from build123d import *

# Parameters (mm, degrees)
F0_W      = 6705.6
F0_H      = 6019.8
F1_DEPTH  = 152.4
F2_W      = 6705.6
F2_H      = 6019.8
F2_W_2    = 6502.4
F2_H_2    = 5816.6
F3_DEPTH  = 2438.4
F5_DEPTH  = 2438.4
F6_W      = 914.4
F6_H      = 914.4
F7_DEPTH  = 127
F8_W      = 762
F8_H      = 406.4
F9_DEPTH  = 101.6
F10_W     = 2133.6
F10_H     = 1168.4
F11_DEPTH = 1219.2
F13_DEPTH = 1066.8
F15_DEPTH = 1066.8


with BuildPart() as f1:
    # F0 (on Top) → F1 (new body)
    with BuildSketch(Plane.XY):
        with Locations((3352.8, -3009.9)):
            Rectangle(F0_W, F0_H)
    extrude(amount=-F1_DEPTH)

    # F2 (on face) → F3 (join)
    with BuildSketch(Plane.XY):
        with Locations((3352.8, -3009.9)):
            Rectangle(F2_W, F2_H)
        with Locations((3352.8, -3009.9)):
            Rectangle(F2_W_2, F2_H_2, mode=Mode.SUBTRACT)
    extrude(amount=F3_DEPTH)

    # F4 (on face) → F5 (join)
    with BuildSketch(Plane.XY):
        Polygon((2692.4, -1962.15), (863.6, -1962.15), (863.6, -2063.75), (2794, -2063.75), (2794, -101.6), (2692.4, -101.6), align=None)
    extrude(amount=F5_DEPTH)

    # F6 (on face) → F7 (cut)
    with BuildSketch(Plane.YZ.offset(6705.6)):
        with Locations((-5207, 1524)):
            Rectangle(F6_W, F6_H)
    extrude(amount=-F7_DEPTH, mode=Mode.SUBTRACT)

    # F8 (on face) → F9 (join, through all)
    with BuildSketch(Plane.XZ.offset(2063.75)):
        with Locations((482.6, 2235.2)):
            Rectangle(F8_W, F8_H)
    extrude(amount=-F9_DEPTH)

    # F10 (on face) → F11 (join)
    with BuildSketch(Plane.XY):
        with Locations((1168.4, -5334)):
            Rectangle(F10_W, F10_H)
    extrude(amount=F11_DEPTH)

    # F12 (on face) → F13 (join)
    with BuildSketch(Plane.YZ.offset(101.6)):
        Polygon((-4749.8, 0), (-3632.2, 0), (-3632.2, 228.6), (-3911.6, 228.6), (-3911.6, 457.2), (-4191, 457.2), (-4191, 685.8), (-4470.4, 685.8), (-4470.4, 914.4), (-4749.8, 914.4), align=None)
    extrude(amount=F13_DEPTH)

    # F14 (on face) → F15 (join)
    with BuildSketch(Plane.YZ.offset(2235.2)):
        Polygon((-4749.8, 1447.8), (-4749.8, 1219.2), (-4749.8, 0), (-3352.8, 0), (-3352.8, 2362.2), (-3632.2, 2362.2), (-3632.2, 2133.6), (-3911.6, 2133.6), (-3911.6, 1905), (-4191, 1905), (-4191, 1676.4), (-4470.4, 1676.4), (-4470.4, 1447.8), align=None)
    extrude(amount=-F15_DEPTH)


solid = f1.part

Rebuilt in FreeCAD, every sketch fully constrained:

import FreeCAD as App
import Part
import Sketcher
from FreeCAD import Vector
Q = App.Units.Quantity

doc = App.newDocument("Part")
body = doc.addObject("PartDesign::Body", "Body")

# Sketch on XY plane
sketch1 = doc.addObject("Sketcher::SketchObject", "Sketch")
body.addObject(sketch1)
sketch1.AttachmentSupport = (doc.XY_Plane, [""])
sketch1.MapMode = "FlatFace"
sketch1.addGeometry(Part.LineSegment(Vector(0, 0, 0), Vector(0, -6020, 0)), False)
sketch1.addGeometry(Part.LineSegment(Vector(0, -6020, 0), Vector(6706, -6020, 0)), False)
sketch1.addGeometry(Part.LineSegment(Vector(6706, -6020, 0), Vector(6706, 0, 0)), False)
sketch1.addGeometry(Part.LineSegment(Vector(6706, 0, 0), Vector(0, 0, 0)), False)
sketch1.addConstraint(Sketcher.Constraint("Coincident", 0, 2, 1, 1))
sketch1.addConstraint(Sketcher.Constraint("Coincident", 1, 2, 2, 1))
sketch1.addConstraint(Sketcher.Constraint("Coincident", 2, 2, 3, 1))
sketch1.addConstraint(Sketcher.Constraint("Coincident", 3, 2, 0, 1))
sketch1.addConstraint(Sketcher.Constraint("Vertical", 0))
sketch1.addConstraint(Sketcher.Constraint("Horizontal", 1))
sketch1.addConstraint(Sketcher.Constraint("Vertical", 2))
sketch1.addConstraint(Sketcher.Constraint("Horizontal", 3))
sketch1.addConstraint(Sketcher.Constraint("Coincident", 3, 2, -1, 1))
sketch1.addConstraint(Sketcher.Constraint("DistanceX", 1, 1, 1, 2, Q("264 in")))
sketch1.addConstraint(Sketcher.Constraint("DistanceY", 0, 2, 0, 1, Q("237 in")))
pad1 = doc.addObject("PartDesign::Pad", "Pad")
body.addObject(pad1)
pad1.Profile = sketch1
pad1.Length = Q("6 in")
pad1.Reversed = True

# Sketch on XY plane
sketch2 = doc.addObject("Sketcher::SketchObject", "Sketch001")
body.addObject(sketch2)
sketch2.AttachmentSupport = (doc.XY_Plane, [""])
sketch2.MapMode = "FlatFace"
sketch2.addGeometry(Part.LineSegment(Vector(0, 0, 0), Vector(0, -6020, 0)), False)
sketch2.addGeometry(Part.LineSegment(Vector(0, -6020, 0), Vector(6706, -6020, 0)), False)
sketch2.addGeometry(Part.LineSegment(Vector(6706, -6020, 0), Vector(6706, 0, 0)), False)
sketch2.addGeometry(Part.LineSegment(Vector(6706, 0, 0), Vector(0, 0, 0)), False)
sketch2.addGeometry(Part.LineSegment(Vector(6604, -5918, 0), Vector(102, -5918, 0)), False)
sketch2.addGeometry(Part.LineSegment(Vector(102, -5918, 0), Vector(102, -102, 0)), False)
sketch2.addGeometry(Part.LineSegment(Vector(102, -102, 0), Vector(6604, -102, 0)), False)
sketch2.addGeometry(Part.LineSegment(Vector(6604, -102, 0), Vector(6604, -5918, 0)), False)
sketch2.addConstraint(Sketcher.Constraint("Coincident", 0, 2, 1, 1))
sketch2.addConstraint(Sketcher.Constraint("Coincident", 1, 2, 2, 1))
sketch2.addConstraint(Sketcher.Constraint("Coincident", 2, 2, 3, 1))
sketch2.addConstraint(Sketcher.Constraint("Coincident", 3, 2, 0, 1))
sketch2.addConstraint(Sketcher.Constraint("Coincident", 4, 2, 5, 1))
sketch2.addConstraint(Sketcher.Constraint("Coincident", 5, 2, 6, 1))
sketch2.addConstraint(Sketcher.Constraint("Coincident", 6, 2, 7, 1))
sketch2.addConstraint(Sketcher.Constraint("Coincident", 7, 2, 4, 1))
sketch2.addConstraint(Sketcher.Constraint("Vertical", 0))
sketch2.addConstraint(Sketcher.Constraint("Horizontal", 1))
sketch2.addConstraint(Sketcher.Constraint("Vertical", 2))
sketch2.addConstraint(Sketcher.Constraint("Horizontal", 3))
sketch2.addConstraint(Sketcher.Constraint("Horizontal", 4))
sketch2.addConstraint(Sketcher.Constraint("Vertical", 5))
sketch2.addConstraint(Sketcher.Constraint("Horizontal", 6))
sketch2.addConstraint(Sketcher.Constraint("Vertical", 7))
sketch2.addConstraint(Sketcher.Constraint("Coincident", 3, 2, -1, 1))
sketch2.addConstraint(Sketcher.Constraint("DistanceX", 1, 1, 1, 2, Q("264 in")))
sketch2.addConstraint(Sketcher.Constraint("DistanceX", 4, 2, 4, 1, Q("256 in")))
sketch2.addConstraint(Sketcher.Constraint("DistanceY", 0, 2, 0, 1, Q("237 in")))
sketch2.addConstraint(Sketcher.Constraint("DistanceY", 5, 1, 5, 2, Q("229 in")))
sketch2.addConstraint(Sketcher.Constraint("DistanceX", -1, 1, 4, 2, Q("4 in")))
sketch2.addConstraint(Sketcher.Constraint("DistanceY", 4, 2, -1, 1, Q("233 in")))
pad2 = doc.addObject("PartDesign::Pad", "Pad001")
body.addObject(pad2)
pad2.Profile = sketch2
pad2.Length = Q("96 in")

# Sketch on XY plane
sketch3 = doc.addObject("Sketcher::SketchObject", "Sketch002")
body.addObject(sketch3)
sketch3.AttachmentSupport = (doc.XY_Plane, [""])
sketch3.MapMode = "FlatFace"
sketch3.addGeometry(Part.LineSegment(Vector(2692, -1962, 0), Vector(864, -1962, 0)), False)
sketch3.addGeometry(Part.LineSegment(Vector(864, -1962, 0), Vector(864, -2064, 0)), False)
sketch3.addGeometry(Part.LineSegment(Vector(864, -2064, 0), Vector(2794, -2064, 0)), False)
sketch3.addGeometry(Part.LineSegment(Vector(2794, -2064, 0), Vector(2794, -102, 0)), False)
sketch3.addGeometry(Part.LineSegment(Vector(2794, -102, 0), Vector(2692, -102, 0)), False)
sketch3.addGeometry(Part.LineSegment(Vector(2692, -102, 0), Vector(2692, -1962, 0)), False)
sketch3.addConstraint(Sketcher.Constraint("Coincident", 0, 2, 1, 1))
sketch3.addConstraint(Sketcher.Constraint("Coincident", 1, 2, 2, 1))
sketch3.addConstraint(Sketcher.Constraint("Coincident", 2, 2, 3, 1))
sketch3.addConstraint(Sketcher.Constraint("Coincident", 3, 2, 4, 1))
sketch3.addConstraint(Sketcher.Constraint("Coincident", 4, 2, 5, 1))
sketch3.addConstraint(Sketcher.Constraint("Coincident", 5, 2, 0, 1))
sketch3.addConstraint(Sketcher.Constraint("Horizontal", 0))
sketch3.addConstraint(Sketcher.Constraint("Vertical", 1))
sketch3.addConstraint(Sketcher.Constraint("Horizontal", 2))
sketch3.addConstraint(Sketcher.Constraint("Vertical", 3))
sketch3.addConstraint(Sketcher.Constraint("Horizontal", 4))
sketch3.addConstraint(Sketcher.Constraint("Vertical", 5))
sketch3.addConstraint(Sketcher.Constraint("Equal", 4, 1))
sketch3.addConstraint(Sketcher.Constraint("DistanceX", 0, 2, 0, 1, Q("72 in")))
sketch3.addConstraint(Sketcher.Constraint("DistanceX", 2, 1, 2, 2, Q("76 in")))
sketch3.addConstraint(Sketcher.Constraint("DistanceX", -1, 1, 0, 2, Q("34 in")))
sketch3.addConstraint(Sketcher.Constraint("DistanceY", 3, 2, -1, 1, Q("4 in")))
sketch3.addConstraint(Sketcher.Constraint("DistanceY", 3, 1, 3, 2, Q("77.25 in")))
pad3 = doc.addObject("PartDesign::Pad", "Pad002")
body.addObject(pad3)
pad3.Profile = sketch3
pad3.Length = Q("96 in")

# Sketch on YZ plane
sketch4 = doc.addObject("Sketcher::SketchObject", "Sketch003")
body.addObject(sketch4)
sketch4.AttachmentSupport = (doc.YZ_Plane, [""])
sketch4.MapMode = "FlatFace"
sketch4.AttachmentOffset = App.Placement(Vector(0, 0, 264 * 25.4), App.Rotation())
sketch4.addGeometry(Part.LineSegment(Vector(-5664, 1981, 0), Vector(-5664, 1067, 0)), False)
sketch4.addGeometry(Part.LineSegment(Vector(-5664, 1067, 0), Vector(-4750, 1067, 0)), False)
sketch4.addGeometry(Part.LineSegment(Vector(-4750, 1067, 0), Vector(-4750, 1981, 0)), False)
sketch4.addGeometry(Part.LineSegment(Vector(-4750, 1981, 0), Vector(-5664, 1981, 0)), False)
sketch4.addConstraint(Sketcher.Constraint("Coincident", 0, 2, 1, 1))
sketch4.addConstraint(Sketcher.Constraint("Coincident", 1, 2, 2, 1))
sketch4.addConstraint(Sketcher.Constraint("Coincident", 2, 2, 3, 1))
sketch4.addConstraint(Sketcher.Constraint("Coincident", 3, 2, 0, 1))
sketch4.addConstraint(Sketcher.Constraint("Vertical", 0))
sketch4.addConstraint(Sketcher.Constraint("Horizontal", 1))
sketch4.addConstraint(Sketcher.Constraint("Vertical", 2))
sketch4.addConstraint(Sketcher.Constraint("Horizontal", 3))
sketch4.addConstraint(Sketcher.Constraint("Equal", 3, 0))
sketch4.addConstraint(Sketcher.Constraint("DistanceX", 1, 1, 1, 2, Q("36 in")))
sketch4.addConstraint(Sketcher.Constraint("DistanceX", 0, 2, -1, 1, Q("223 in")))
sketch4.addConstraint(Sketcher.Constraint("DistanceY", -1, 1, 0, 2, Q("42 in")))
pocket1 = doc.addObject("PartDesign::Pocket", "Pocket")
body.addObject(pocket1)
pocket1.Profile = sketch4
pocket1.Length = Q("5 in")

# Sketch on XZ plane
sketch5 = doc.addObject("Sketcher::SketchObject", "Sketch004")
body.addObject(sketch5)
sketch5.AttachmentSupport = (doc.XZ_Plane, [""])
sketch5.MapMode = "FlatFace"
sketch5.AttachmentOffset = App.Placement(Vector(0, 0, 81.25 * 25.4), App.Rotation())
sketch5.addGeometry(Part.LineSegment(Vector(102, 2438, 0), Vector(102, 2032, 0)), False)
sketch5.addGeometry(Part.LineSegment(Vector(102, 2032, 0), Vector(864, 2032, 0)), False)
sketch5.addGeometry(Part.LineSegment(Vector(864, 2032, 0), Vector(864, 2438, 0)), False)
sketch5.addGeometry(Part.LineSegment(Vector(864, 2438, 0), Vector(102, 2438, 0)), False)
sketch5.addConstraint(Sketcher.Constraint("Coincident", 0, 2, 1, 1))
sketch5.addConstraint(Sketcher.Constraint("Coincident", 1, 2, 2, 1))
sketch5.addConstraint(Sketcher.Constraint("Coincident", 2, 2, 3, 1))
sketch5.addConstraint(Sketcher.Constraint("Coincident", 3, 2, 0, 1))
sketch5.addConstraint(Sketcher.Constraint("Vertical", 0))
sketch5.addConstraint(Sketcher.Constraint("Horizontal", 1))
sketch5.addConstraint(Sketcher.Constraint("Vertical", 2))
sketch5.addConstraint(Sketcher.Constraint("Horizontal", 3))
sketch5.addConstraint(Sketcher.Constraint("DistanceX", 1, 1, 1, 2, Q("30 in")))
sketch5.addConstraint(Sketcher.Constraint("DistanceY", 0, 2, 0, 1, Q("16 in")))
sketch5.addConstraint(Sketcher.Constraint("DistanceX", -1, 1, 0, 2, Q("4 in")))
sketch5.addConstraint(Sketcher.Constraint("DistanceY", -1, 1, 0, 2, Q("80 in")))
pad4 = doc.addObject("PartDesign::Pad", "Pad003")
body.addObject(pad4)
pad4.Profile = sketch5
pad4.Length = Q("4 in")
pad4.Reversed = True

# Sketch on XY plane
sketch6 = doc.addObject("Sketcher::SketchObject", "Sketch005")
body.addObject(sketch6)
sketch6.AttachmentSupport = (doc.XY_Plane, [""])
sketch6.MapMode = "FlatFace"
sketch6.addGeometry(Part.LineSegment(Vector(102, -4750, 0), Vector(102, -5918, 0)), False)
sketch6.addGeometry(Part.LineSegment(Vector(102, -5918, 0), Vector(2235, -5918, 0)), False)
sketch6.addGeometry(Part.LineSegment(Vector(2235, -5918, 0), Vector(2235, -4750, 0)), False)
sketch6.addGeometry(Part.LineSegment(Vector(2235, -4750, 0), Vector(102, -4750, 0)), False)
sketch6.addConstraint(Sketcher.Constraint("Coincident", 0, 2, 1, 1))
sketch6.addConstraint(Sketcher.Constraint("Coincident", 1, 2, 2, 1))
sketch6.addConstraint(Sketcher.Constraint("Coincident", 2, 2, 3, 1))
sketch6.addConstraint(Sketcher.Constraint("Coincident", 3, 2, 0, 1))
sketch6.addConstraint(Sketcher.Constraint("Vertical", 0))
sketch6.addConstraint(Sketcher.Constraint("Horizontal", 1))
sketch6.addConstraint(Sketcher.Constraint("Vertical", 2))
sketch6.addConstraint(Sketcher.Constraint("Horizontal", 3))
sketch6.addConstraint(Sketcher.Constraint("DistanceX", 1, 1, 1, 2, Q("84 in")))
sketch6.addConstraint(Sketcher.Constraint("DistanceY", 0, 2, 0, 1, Q("46 in")))
sketch6.addConstraint(Sketcher.Constraint("DistanceX", -1, 1, 0, 2, Q("4 in")))
sketch6.addConstraint(Sketcher.Constraint("DistanceY", 0, 2, -1, 1, Q("233 in")))
pad5 = doc.addObject("PartDesign::Pad", "Pad004")
body.addObject(pad5)
pad5.Profile = sketch6
pad5.Length = Q("48 in")

# Sketch on YZ plane
sketch7 = doc.addObject("Sketcher::SketchObject", "Sketch006")
body.addObject(sketch7)
sketch7.AttachmentSupport = (doc.YZ_Plane, [""])
sketch7.MapMode = "FlatFace"
sketch7.AttachmentOffset = App.Placement(Vector(0, 0, 4 * 25.4), App.Rotation())
sketch7.addGeometry(Part.LineSegment(Vector(-4750, 0, 0), Vector(-3632, 0, 0)), False)
sketch7.addGeometry(Part.LineSegment(Vector(-3632, 0, 0), Vector(-3632, 229, 0)), False)
sketch7.addGeometry(Part.LineSegment(Vector(-3632, 229, 0), Vector(-3912, 229, 0)), False)
sketch7.addGeometry(Part.LineSegment(Vector(-3912, 229, 0), Vector(-3912, 457, 0)), False)
sketch7.addGeometry(Part.LineSegment(Vector(-3912, 457, 0), Vector(-4191, 457, 0)), False)
sketch7.addGeometry(Part.LineSegment(Vector(-4191, 457, 0), Vector(-4191, 686, 0)), False)
sketch7.addGeometry(Part.LineSegment(Vector(-4191, 686, 0), Vector(-4470, 686, 0)), False)
sketch7.addGeometry(Part.LineSegment(Vector(-4470, 686, 0), Vector(-4470, 914, 0)), False)
sketch7.addGeometry(Part.LineSegment(Vector(-4470, 914, 0), Vector(-4750, 914, 0)), False)
sketch7.addGeometry(Part.LineSegment(Vector(-4750, 914, 0), Vector(-4750, 0, 0)), False)
sketch7.addConstraint(Sketcher.Constraint("Coincident", 0, 2, 1, 1))
sketch7.addConstraint(Sketcher.Constraint("Coincident", 1, 2, 2, 1))
sketch7.addConstraint(Sketcher.Constraint("Coincident", 2, 2, 3, 1))
sketch7.addConstraint(Sketcher.Constraint("Coincident", 3, 2, 4, 1))
sketch7.addConstraint(Sketcher.Constraint("Coincident", 4, 2, 5, 1))
sketch7.addConstraint(Sketcher.Constraint("Coincident", 5, 2, 6, 1))
sketch7.addConstraint(Sketcher.Constraint("Coincident", 6, 2, 7, 1))
sketch7.addConstraint(Sketcher.Constraint("Coincident", 7, 2, 8, 1))
sketch7.addConstraint(Sketcher.Constraint("Coincident", 8, 2, 9, 1))
sketch7.addConstraint(Sketcher.Constraint("Coincident", 9, 2, 0, 1))
sketch7.addConstraint(Sketcher.Constraint("Horizontal", 0))
sketch7.addConstraint(Sketcher.Constraint("Vertical", 1))
sketch7.addConstraint(Sketcher.Constraint("Horizontal", 2))
sketch7.addConstraint(Sketcher.Constraint("Vertical", 3))
sketch7.addConstraint(Sketcher.Constraint("Horizontal", 4))
sketch7.addConstraint(Sketcher.Constraint("Vertical", 5))
sketch7.addConstraint(Sketcher.Constraint("Horizontal", 6))
sketch7.addConstraint(Sketcher.Constraint("Vertical", 7))
sketch7.addConstraint(Sketcher.Constraint("Horizontal", 8))
sketch7.addConstraint(Sketcher.Constraint("Vertical", 9))
sketch7.addConstraint(Sketcher.Constraint("PointOnObject", 0, 2, -1))
sketch7.addConstraint(Sketcher.Constraint("Equal", 2, 4))
sketch7.addConstraint(Sketcher.Constraint("Equal", 4, 6))
sketch7.addConstraint(Sketcher.Constraint("Equal", 6, 8))
sketch7.addConstraint(Sketcher.Constraint("Equal", 1, 3))
sketch7.addConstraint(Sketcher.Constraint("Equal", 3, 5))
sketch7.addConstraint(Sketcher.Constraint("Equal", 5, 7))
sketch7.addConstraint(Sketcher.Constraint("DistanceX", 0, 1, 0, 2, Q("44 in")))
sketch7.addConstraint(Sketcher.Constraint("DistanceY", 1, 1, 1, 2, Q("9 in")))
sketch7.addConstraint(Sketcher.Constraint("DistanceX", 0, 2, -1, 1, Q("143 in")))
pad6 = doc.addObject("PartDesign::Pad", "Pad005")
body.addObject(pad6)
pad6.Profile = sketch7
pad6.Length = Q("42 in")

# Sketch on YZ plane
sketch8 = doc.addObject("Sketcher::SketchObject", "Sketch007")
body.addObject(sketch8)
sketch8.AttachmentSupport = (doc.YZ_Plane, [""])
sketch8.MapMode = "FlatFace"
sketch8.AttachmentOffset = App.Placement(Vector(0, 0, 88 * 25.4), App.Rotation())
sketch8.addGeometry(Part.LineSegment(Vector(-4750, 1448, 0), Vector(-4750, 0, 0)), False)
sketch8.addGeometry(Part.LineSegment(Vector(-4750, 0, 0), Vector(-3353, 0, 0)), False)
sketch8.addGeometry(Part.LineSegment(Vector(-3353, 0, 0), Vector(-3353, 2362, 0)), False)
sketch8.addGeometry(Part.LineSegment(Vector(-3353, 2362, 0), Vector(-3632, 2362, 0)), False)
sketch8.addGeometry(Part.LineSegment(Vector(-3632, 2362, 0), Vector(-3632, 2134, 0)), False)
sketch8.addGeometry(Part.LineSegment(Vector(-3632, 2134, 0), Vector(-3912, 2134, 0)), False)
sketch8.addGeometry(Part.LineSegment(Vector(-3912, 2134, 0), Vector(-3912, 1905, 0)), False)
sketch8.addGeometry(Part.LineSegment(Vector(-3912, 1905, 0), Vector(-4191, 1905, 0)), False)
sketch8.addGeometry(Part.LineSegment(Vector(-4191, 1905, 0), Vector(-4191, 1676, 0)), False)
sketch8.addGeometry(Part.LineSegment(Vector(-4191, 1676, 0), Vector(-4470, 1676, 0)), False)
sketch8.addGeometry(Part.LineSegment(Vector(-4470, 1676, 0), Vector(-4470, 1448, 0)), False)
sketch8.addGeometry(Part.LineSegment(Vector(-4470, 1448, 0), Vector(-4750, 1448, 0)), False)
sketch8.addConstraint(Sketcher.Constraint("Coincident", 0, 2, 1, 1))
sketch8.addConstraint(Sketcher.Constraint("Coincident", 1, 2, 2, 1))
sketch8.addConstraint(Sketcher.Constraint("Coincident", 2, 2, 3, 1))
sketch8.addConstraint(Sketcher.Constraint("Coincident", 3, 2, 4, 1))
sketch8.addConstraint(Sketcher.Constraint("Coincident", 4, 2, 5, 1))
sketch8.addConstraint(Sketcher.Constraint("Coincident", 5, 2, 6, 1))
sketch8.addConstraint(Sketcher.Constraint("Coincident", 6, 2, 7, 1))
sketch8.addConstraint(Sketcher.Constraint("Coincident", 7, 2, 8, 1))
sketch8.addConstraint(Sketcher.Constraint("Coincident", 8, 2, 9, 1))
sketch8.addConstraint(Sketcher.Constraint("Coincident", 9, 2, 10, 1))
sketch8.addConstraint(Sketcher.Constraint("Coincident", 10, 2, 11, 1))
sketch8.addConstraint(Sketcher.Constraint("Coincident", 11, 2, 0, 1))
sketch8.addConstraint(Sketcher.Constraint("Vertical", 0))
sketch8.addConstraint(Sketcher.Constraint("Horizontal", 1))
sketch8.addConstraint(Sketcher.Constraint("Vertical", 2))
sketch8.addConstraint(Sketcher.Constraint("Horizontal", 3))
sketch8.addConstraint(Sketcher.Constraint("Vertical", 4))
sketch8.addConstraint(Sketcher.Constraint("Horizontal", 5))
sketch8.addConstraint(Sketcher.Constraint("Vertical", 6))
sketch8.addConstraint(Sketcher.Constraint("Horizontal", 7))
sketch8.addConstraint(Sketcher.Constraint("Vertical", 8))
sketch8.addConstraint(Sketcher.Constraint("Horizontal", 9))
sketch8.addConstraint(Sketcher.Constraint("Vertical", 10))
sketch8.addConstraint(Sketcher.Constraint("Horizontal", 11))
sketch8.addConstraint(Sketcher.Constraint("PointOnObject", 0, 2, -1))
sketch8.addConstraint(Sketcher.Constraint("Equal", 3, 5))
sketch8.addConstraint(Sketcher.Constraint("Equal", 5, 7))
sketch8.addConstraint(Sketcher.Constraint("Equal", 7, 9))
sketch8.addConstraint(Sketcher.Constraint("Equal", 9, 11))
sketch8.addConstraint(Sketcher.Constraint("Equal", 4, 6))
sketch8.addConstraint(Sketcher.Constraint("Equal", 6, 8))
sketch8.addConstraint(Sketcher.Constraint("Equal", 8, 10))
sketch8.addConstraint(Sketcher.Constraint("DistanceX", 1, 1, 1, 2, Q("55 in")))
sketch8.addConstraint(Sketcher.Constraint("DistanceY", 0, 2, 0, 1, Q("57 in")))
sketch8.addConstraint(Sketcher.Constraint("DistanceY", 2, 1, 2, 2, Q("93 in")))
sketch8.addConstraint(Sketcher.Constraint("DistanceX", 0, 2, -1, 1, Q("187 in")))
pad7 = doc.addObject("PartDesign::Pad", "Pad006")
body.addObject(pad7)
pad7.Profile = sketch8
pad7.Length = Q("42 in")
pad7.Reversed = True

doc.recompute()
